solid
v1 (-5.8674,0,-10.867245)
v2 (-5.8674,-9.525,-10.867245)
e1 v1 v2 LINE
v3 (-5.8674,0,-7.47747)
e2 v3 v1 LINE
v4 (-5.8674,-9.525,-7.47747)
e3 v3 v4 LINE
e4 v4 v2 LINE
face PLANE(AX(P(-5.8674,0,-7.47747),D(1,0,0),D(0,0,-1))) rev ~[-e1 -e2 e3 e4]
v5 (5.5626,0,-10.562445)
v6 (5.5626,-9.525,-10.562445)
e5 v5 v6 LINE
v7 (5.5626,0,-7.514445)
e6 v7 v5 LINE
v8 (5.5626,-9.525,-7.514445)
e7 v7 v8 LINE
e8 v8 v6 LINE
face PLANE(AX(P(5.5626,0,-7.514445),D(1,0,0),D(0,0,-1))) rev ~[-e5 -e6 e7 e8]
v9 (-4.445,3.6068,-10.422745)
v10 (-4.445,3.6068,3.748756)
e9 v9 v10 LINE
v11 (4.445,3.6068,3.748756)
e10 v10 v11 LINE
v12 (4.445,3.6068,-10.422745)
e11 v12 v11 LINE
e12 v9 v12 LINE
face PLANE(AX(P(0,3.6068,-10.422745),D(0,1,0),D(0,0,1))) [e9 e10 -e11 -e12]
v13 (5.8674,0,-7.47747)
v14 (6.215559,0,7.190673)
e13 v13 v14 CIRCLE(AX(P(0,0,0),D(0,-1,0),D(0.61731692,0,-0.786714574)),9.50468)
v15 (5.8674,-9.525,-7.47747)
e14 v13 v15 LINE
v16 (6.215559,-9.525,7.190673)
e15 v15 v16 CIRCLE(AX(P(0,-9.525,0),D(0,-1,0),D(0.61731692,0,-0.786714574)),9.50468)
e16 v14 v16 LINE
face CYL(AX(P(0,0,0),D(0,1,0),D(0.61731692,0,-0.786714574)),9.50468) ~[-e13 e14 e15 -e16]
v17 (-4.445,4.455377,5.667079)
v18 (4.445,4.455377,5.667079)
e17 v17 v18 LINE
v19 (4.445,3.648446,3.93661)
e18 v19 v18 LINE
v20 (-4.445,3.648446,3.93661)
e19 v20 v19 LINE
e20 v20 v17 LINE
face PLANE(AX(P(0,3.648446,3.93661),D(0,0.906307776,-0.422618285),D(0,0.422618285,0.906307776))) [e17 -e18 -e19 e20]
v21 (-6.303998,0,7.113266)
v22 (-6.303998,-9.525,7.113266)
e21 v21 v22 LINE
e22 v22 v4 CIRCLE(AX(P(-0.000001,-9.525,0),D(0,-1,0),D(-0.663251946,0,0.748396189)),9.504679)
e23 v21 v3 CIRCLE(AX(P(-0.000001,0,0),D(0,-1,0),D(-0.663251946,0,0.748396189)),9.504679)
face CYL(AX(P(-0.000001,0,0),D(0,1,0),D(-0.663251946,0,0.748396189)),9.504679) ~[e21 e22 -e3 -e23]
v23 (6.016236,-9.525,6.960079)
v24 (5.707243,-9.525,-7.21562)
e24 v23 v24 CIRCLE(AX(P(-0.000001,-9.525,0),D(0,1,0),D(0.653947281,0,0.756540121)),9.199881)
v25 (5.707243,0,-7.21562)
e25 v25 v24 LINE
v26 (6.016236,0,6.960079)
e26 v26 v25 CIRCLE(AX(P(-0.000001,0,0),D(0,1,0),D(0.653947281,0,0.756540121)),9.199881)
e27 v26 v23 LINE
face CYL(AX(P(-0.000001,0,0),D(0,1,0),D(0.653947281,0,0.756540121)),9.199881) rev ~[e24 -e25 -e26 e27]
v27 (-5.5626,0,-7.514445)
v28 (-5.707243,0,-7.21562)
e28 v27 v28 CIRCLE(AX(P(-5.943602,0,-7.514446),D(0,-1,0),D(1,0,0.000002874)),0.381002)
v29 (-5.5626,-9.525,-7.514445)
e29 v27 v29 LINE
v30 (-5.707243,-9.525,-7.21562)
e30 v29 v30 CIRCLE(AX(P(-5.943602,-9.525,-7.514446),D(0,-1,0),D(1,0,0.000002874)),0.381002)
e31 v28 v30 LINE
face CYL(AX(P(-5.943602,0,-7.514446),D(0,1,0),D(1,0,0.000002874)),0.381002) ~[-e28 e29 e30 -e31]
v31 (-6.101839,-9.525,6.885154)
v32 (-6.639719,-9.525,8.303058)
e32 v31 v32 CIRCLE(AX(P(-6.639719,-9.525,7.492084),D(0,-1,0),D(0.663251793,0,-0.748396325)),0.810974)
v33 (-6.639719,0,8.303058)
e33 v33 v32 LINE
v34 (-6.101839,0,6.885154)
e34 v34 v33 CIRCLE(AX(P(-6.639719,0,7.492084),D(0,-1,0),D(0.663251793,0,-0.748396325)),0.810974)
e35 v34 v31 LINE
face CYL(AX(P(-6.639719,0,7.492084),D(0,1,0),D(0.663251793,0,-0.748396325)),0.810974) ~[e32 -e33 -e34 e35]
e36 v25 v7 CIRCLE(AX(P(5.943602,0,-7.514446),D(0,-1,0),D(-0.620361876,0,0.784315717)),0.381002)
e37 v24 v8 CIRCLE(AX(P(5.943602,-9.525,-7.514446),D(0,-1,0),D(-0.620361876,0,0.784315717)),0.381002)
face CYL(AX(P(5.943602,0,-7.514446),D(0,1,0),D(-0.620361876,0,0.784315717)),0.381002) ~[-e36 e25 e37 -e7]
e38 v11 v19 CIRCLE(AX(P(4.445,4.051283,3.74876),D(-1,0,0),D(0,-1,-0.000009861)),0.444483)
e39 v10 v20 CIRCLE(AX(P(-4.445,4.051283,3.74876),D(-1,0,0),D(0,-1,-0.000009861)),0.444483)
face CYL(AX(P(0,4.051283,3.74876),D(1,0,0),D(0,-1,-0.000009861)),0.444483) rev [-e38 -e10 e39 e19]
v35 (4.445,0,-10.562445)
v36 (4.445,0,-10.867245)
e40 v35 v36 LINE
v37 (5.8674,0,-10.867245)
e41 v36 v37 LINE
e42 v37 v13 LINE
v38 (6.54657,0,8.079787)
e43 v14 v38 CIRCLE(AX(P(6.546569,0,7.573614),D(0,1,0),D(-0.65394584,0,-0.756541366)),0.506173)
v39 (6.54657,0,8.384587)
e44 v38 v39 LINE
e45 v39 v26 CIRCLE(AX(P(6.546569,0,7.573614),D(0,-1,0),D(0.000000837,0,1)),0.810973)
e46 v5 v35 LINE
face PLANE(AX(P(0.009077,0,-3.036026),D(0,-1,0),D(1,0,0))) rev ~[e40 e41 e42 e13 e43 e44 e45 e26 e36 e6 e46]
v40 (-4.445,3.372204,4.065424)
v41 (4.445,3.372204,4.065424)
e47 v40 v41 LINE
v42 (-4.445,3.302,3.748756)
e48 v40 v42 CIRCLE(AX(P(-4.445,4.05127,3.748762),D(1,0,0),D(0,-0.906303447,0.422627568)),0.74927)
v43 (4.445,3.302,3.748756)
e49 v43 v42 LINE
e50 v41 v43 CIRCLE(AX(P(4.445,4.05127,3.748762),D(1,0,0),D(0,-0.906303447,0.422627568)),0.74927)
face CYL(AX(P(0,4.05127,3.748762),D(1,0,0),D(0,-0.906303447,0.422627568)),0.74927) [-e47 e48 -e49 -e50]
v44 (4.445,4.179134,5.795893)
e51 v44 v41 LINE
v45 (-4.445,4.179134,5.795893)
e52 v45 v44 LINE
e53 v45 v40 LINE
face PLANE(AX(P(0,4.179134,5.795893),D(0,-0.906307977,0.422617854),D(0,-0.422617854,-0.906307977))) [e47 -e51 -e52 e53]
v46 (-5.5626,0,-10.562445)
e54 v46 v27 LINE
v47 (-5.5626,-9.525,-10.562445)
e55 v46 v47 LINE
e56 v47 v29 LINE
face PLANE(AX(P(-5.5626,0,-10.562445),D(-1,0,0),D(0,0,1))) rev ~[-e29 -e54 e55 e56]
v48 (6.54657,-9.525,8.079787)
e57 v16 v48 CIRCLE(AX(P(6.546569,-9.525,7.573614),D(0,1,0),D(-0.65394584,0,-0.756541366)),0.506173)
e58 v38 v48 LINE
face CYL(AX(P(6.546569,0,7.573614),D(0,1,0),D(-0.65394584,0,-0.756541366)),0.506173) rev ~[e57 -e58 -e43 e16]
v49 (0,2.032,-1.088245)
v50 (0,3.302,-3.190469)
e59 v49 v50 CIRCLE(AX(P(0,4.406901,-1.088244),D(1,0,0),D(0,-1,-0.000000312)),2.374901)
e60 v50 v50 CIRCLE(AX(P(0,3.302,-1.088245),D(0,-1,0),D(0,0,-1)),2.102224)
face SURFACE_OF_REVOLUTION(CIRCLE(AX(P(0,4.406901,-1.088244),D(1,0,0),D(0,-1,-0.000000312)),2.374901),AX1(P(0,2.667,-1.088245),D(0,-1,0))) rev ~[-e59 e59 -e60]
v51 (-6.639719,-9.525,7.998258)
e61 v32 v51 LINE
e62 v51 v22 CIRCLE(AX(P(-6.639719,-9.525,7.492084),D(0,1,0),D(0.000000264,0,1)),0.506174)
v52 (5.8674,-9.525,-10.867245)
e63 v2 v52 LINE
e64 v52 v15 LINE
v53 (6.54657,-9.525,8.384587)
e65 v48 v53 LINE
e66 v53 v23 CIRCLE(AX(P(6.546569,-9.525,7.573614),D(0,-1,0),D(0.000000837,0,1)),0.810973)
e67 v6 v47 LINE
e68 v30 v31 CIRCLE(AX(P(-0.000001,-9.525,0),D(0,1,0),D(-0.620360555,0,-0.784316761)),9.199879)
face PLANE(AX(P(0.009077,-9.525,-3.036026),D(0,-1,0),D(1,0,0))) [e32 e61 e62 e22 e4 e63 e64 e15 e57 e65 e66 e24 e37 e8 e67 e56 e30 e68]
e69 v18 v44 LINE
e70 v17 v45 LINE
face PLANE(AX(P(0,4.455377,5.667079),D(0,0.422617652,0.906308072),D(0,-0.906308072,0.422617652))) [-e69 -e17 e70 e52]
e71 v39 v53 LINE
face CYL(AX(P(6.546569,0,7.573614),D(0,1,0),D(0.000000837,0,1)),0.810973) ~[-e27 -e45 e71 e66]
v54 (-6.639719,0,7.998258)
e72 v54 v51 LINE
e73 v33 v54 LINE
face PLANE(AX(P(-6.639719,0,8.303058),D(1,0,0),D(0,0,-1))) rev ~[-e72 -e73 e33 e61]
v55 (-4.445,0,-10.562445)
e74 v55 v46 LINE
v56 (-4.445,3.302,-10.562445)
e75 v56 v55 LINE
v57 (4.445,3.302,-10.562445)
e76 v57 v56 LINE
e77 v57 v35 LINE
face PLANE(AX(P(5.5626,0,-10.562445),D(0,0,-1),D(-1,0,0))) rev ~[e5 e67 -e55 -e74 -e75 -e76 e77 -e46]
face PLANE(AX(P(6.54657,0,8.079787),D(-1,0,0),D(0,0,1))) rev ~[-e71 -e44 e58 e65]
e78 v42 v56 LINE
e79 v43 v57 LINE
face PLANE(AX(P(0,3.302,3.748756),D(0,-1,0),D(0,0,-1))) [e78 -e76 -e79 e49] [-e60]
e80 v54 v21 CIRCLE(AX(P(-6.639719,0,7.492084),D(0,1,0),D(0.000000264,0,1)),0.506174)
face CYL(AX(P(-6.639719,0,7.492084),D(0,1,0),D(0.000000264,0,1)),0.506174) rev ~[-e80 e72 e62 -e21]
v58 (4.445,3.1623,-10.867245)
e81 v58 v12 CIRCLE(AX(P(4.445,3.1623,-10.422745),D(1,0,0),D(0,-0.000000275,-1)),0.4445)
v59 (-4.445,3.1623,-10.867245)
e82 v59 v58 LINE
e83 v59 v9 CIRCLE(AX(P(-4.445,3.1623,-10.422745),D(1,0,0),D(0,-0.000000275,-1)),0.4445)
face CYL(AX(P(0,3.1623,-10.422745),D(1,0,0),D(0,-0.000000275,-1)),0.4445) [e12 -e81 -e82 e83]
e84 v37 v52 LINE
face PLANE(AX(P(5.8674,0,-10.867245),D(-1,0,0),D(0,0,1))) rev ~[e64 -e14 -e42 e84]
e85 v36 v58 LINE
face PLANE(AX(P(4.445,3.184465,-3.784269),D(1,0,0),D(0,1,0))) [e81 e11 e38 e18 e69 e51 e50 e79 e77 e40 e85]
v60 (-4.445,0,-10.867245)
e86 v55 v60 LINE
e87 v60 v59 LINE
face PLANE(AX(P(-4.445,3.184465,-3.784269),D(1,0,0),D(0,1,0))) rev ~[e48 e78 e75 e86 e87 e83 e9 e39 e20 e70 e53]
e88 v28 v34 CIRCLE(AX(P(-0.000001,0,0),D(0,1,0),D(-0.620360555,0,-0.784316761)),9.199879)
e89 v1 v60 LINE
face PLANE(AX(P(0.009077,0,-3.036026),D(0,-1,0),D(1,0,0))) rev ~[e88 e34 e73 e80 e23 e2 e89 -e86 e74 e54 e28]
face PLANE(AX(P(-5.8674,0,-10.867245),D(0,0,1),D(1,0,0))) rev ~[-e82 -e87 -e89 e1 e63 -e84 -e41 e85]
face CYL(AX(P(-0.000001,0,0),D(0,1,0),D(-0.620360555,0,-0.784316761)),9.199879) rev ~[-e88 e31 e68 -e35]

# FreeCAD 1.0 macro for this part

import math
import FreeCAD as App
import Part
import Sketcher
from FreeCAD import Vector
Q = App.Units.Quantity

doc = App.newDocument("Part")
body = doc.addObject("PartDesign::Body", "Body")

# Sketch on XZ plane
sketch1 = body.newObject("Sketcher::SketchObject", "Sketch")
sketch1.AttachmentSupport = (doc.getObject("XZ_Plane"), [""])
sketch1.MapMode = "FlatFace"
sketch1.addGeometry([
    Part.ArcOfCircle(Part.Circle(Vector(0, 0, 0), Vector(0, 0, 1), 9.2), math.radians(132), math.radians(232)),  # 0
    Part.ArcOfCircle(Part.Circle(Vector(-6.64, 7.49, 0), Vector(0, 0, 1), 0.81), math.radians(-48), math.radians(90)),  # 1
    Part.LineSegment(Vector(-6.64, 8.3, 0), Vector(-6.64, 8, 0)),  # 2
    Part.ArcOfCircle(Part.Circle(Vector(-6.64, 7.49, 0), Vector(0, 0, 1), 0.51), math.radians(-48), math.radians(90)),  # 3
    Part.ArcOfCircle(Part.Circle(Vector(0, 0, 0), Vector(0, 0, 1), 9.5), math.radians(132), math.radians(232)),  # 4
    Part.LineSegment(Vector(-5.87, -7.48, 0), Vector(-5.87, -10.87, 0)),  # 5
    Part.LineSegment(Vector(-5.87, -10.87, 0), Vector(5.87, -10.87, 0)),  # 6
    Part.LineSegment(Vector(5.87, -10.87, 0), Vector(5.87, -7.48, 0)),  # 7
    Part.ArcOfCircle(Part.Circle(Vector(0, 0, 0), Vector(0, 0, 1), 9.5), math.radians(-52), math.radians(49)),  # 8
    Part.ArcOfCircle(Part.Circle(Vector(6.55, 7.57, 0), Vector(0, 0, 1), 0.51), math.radians(90), math.radians(229)),  # 9
    Part.LineSegment(Vector(6.55, 8.08, 0), Vector(6.55, 8.38, 0)),  # 10
    Part.ArcOfCircle(Part.Circle(Vector(6.55, 7.57, 0), Vector(0, 0, 1), 0.81), math.radians(90), math.radians(229)),  # 11
    Part.ArcOfCircle(Part.Circle(Vector(0, 0, 0), Vector(0, 0, 1), 9.2), math.radians(-52), math.radians(49)),  # 12
    Part.ArcOfCircle(Part.Circle(Vector(5.94, -7.51, 0), Vector(0, 0, 1), 0.38), math.radians(128), math.radians(180)),  # 13
    Part.LineSegment(Vector(5.56, -7.51, 0), Vector(5.56, -10.56, 0)),  # 14
    Part.LineSegment(Vector(5.56, -10.56, 0), Vector(-5.56, -10.56, 0)),  # 15
    Part.LineSegment(Vector(-5.56, -10.56, 0), Vector(-5.56, -7.51, 0)),  # 16
    Part.ArcOfCircle(Part.Circle(Vector(-5.94, -7.51, 0), Vector(0, 0, 1), 0.38), math.radians(0), math.radians(52)),  # 17
], False)
sketch1.addConstraint([
    Sketcher.Constraint("Tangent", 0, 1, 1, 1),
    Sketcher.Constraint("Coincident", 1, 2, 2, 1),
    Sketcher.Constraint("Coincident", 2, 2, 3, 2),
    Sketcher.Constraint("Tangent", 3, 1, 4, 1),
    Sketcher.Constraint("Coincident", 4, 2, 5, 1),
    Sketcher.Constraint("Coincident", 5, 2, 6, 1),
    Sketcher.Constraint("Coincident", 6, 2, 7, 1),
    Sketcher.Constraint("Coincident", 7, 2, 8, 1),
    Sketcher.Constraint("Tangent", 8, 2, 9, 2),
    Sketcher.Constraint("Coincident", 9, 1, 10, 1),
    Sketcher.Constraint("Coincident", 10, 2, 11, 1),
    Sketcher.Constraint("Tangent", 11, 2, 12, 2),
    Sketcher.Constraint("Tangent", 12, 1, 13, 1),
    Sketcher.Constraint("Coincident", 13, 2, 14, 1),
    Sketcher.Constraint("Coincident", 14, 2, 15, 1),
    Sketcher.Constraint("Coincident", 15, 2, 16, 1),
    Sketcher.Constraint("Coincident", 16, 2, 17, 1),
    Sketcher.Constraint("Tangent", 17, 2, 0, 2),
    Sketcher.Constraint("Vertical", 2),
    Sketcher.Constraint("Vertical", 5),
    Sketcher.Constraint("Horizontal", 6),
    Sketcher.Constraint("Vertical", 7),
    Sketcher.Constraint("Vertical", 10),
    Sketcher.Constraint("Vertical", 14),
    Sketcher.Constraint("Horizontal", 15),
    Sketcher.Constraint("Vertical", 16),
    Sketcher.Constraint("Coincident", 0, 3, -1, 1),
    Sketcher.Constraint("Coincident", 4, 3, -1, 1),
    Sketcher.Constraint("Coincident", 8, 3, -1, 1),
    Sketcher.Constraint("Coincident", 12, 3, -1, 1),
    Sketcher.Constraint("Coincident", 3, 3, 1, 3),
    Sketcher.Constraint("Coincident", 11, 3, 9, 3),
    Sketcher.Constraint("Equal", 4, 8),
    Sketcher.Constraint("Equal", 3, 9),
    Sketcher.Constraint("Equal", 1, 11),
    Sketcher.Constraint("Equal", 13, 17),
    Sketcher.Constraint("Symmetric", 13, 2, 16, 2, -2),
    Sketcher.Constraint("Horizontal", 4, 2, 7, 2),
    Sketcher.Constraint("Horizontal", 17, 3, 13, 2),
    Sketcher.Constraint("Vertical", 3, 3, 1, 2),
    Sketcher.Constraint("Vertical", 11, 3, 9, 1),
    Sketcher.Constraint("Radius", 13, Q("0.0150001 in")),
    Sketcher.Constraint("DistanceY", 14, 2, 14, 1, Q("0.12 in")),
    Sketcher.Constraint("Radius", 0, Q("0.3622 in")),
    Sketcher.Constraint("Radius", 4, Q("0.3742 in")),
    Sketcher.Constraint("DistanceX", 6, 1, 6, 2, Q("0.462 in")),
    Sketcher.Constraint("DistanceX", 15, 2, 15, 1, Q("0.438 in")),
    Sketcher.Constraint("DistanceY", 5, 2, 17, 3, Q("0.132 in")),
    Sketcher.Constraint("Radius", 1, Q("0.810974 mm")),
    Sketcher.Constraint("DistanceX", 1, 3, -1, 1, Q("6.639719 mm")),
    Sketcher.Constraint("DistanceX", -1, 1, 9, 3, Q("6.546569 mm")),
])
pad1 = body.newObject("PartDesign::Pad", "Pad")
pad1.Profile = sketch1
pad1.Length = Q("0.375 in")

# Sketch on YZ plane
sketch2 = body.newObject("Sketcher::SketchObject", "Sketch001")
sketch2.AttachmentSupport = (doc.getObject("YZ_Plane"), [""])
sketch2.MapMode = "FlatFace"
sketch2.addGeometry([
    Part.LineSegment(Vector(0, -10.56, 0), Vector(0, -10.87, 0)),  # 0
    Part.LineSegment(Vector(0, -10.87, 0), Vector(3.16, -10.87, 0)),  # 1
    Part.ArcOfCircle(Part.Circle(Vector(3.16, -10.42, 0), Vector(0, 0, 1), 0.44), math.radians(-90), math.radians(0)),  # 2
    Part.LineSegment(Vector(3.61, -10.42, 0), Vector(3.61, 3.75, 0)),  # 3
    Part.ArcOfCircle(Part.Circle(Vector(4.05, 3.75, 0), Vector(0, 0, 1), 0.44), math.radians(155), math.radians(180)),  # 4
    Part.LineSegment(Vector(3.65, 3.94, 0), Vector(4.46, 5.67, 0)),  # 5
    Part.LineSegment(Vector(4.46, 5.67, 0), Vector(4.18, 5.8, 0)),  # 6
    Part.LineSegment(Vector(4.18, 5.8, 0), Vector(3.37, 4.07, 0)),  # 7
    Part.ArcOfCircle(Part.Circle(Vector(4.05, 3.75, 0), Vector(0, 0, 1), 0.75), math.radians(155), math.radians(180)),  # 8
    Part.LineSegment(Vector(3.3, 3.75, 0), Vector(3.3, -10.56, 0)),  # 9
    Part.LineSegment(Vector(3.3, -10.56, 0), Vector(0, -10.56, 0)),  # 10
], False)
sketch2.addConstraint([
    Sketcher.Constraint("Coincident", 0, 2, 1, 1),
    Sketcher.Constraint("Tangent", 1, 2, 2, 1),
    Sketcher.Constraint("Tangent", 2, 2, 3, 1),
    Sketcher.Constraint("Coincident", 3, 2, 4, 2),
    Sketcher.Constraint("Coincident", 4, 1, 5, 1),
    Sketcher.Constraint("Coincident", 5, 2, 6, 1),
    Sketcher.Constraint("Coincident", 6, 2, 7, 1),
    Sketcher.Constraint("Coincident", 7, 2, 8, 1),
    Sketcher.Constraint("Coincident", 8, 2, 9, 1),
    Sketcher.Constraint("Coincident", 9, 2, 10, 1),
    Sketcher.Constraint("Coincident", 10, 2, 0, 1),
    Sketcher.Constraint("Vertical", 0),
    Sketcher.Constraint("Horizontal", 1),
    Sketcher.Constraint("Vertical", 3),
    Sketcher.Constraint("Vertical", 9),
    Sketcher.Constraint("Horizontal", 10),
    Sketcher.Constraint("PointOnObject", 0, 2, -2),
    Sketcher.Constraint("Perpendicular", 5, 6),
    Sketcher.Constraint("Perpendicular", 6, 7),
    Sketcher.Constraint("Horizontal", 4, 3, 8, 3),
    Sketcher.Constraint("Horizontal", 3, 2, 8, 2),
    Sketcher.Constraint("Equal", 5, 7),
    Sketcher.Constraint("Angle", 5, Q("64.999999 deg")),
    Sketcher.Constraint("DistanceX", 10, 2, 10, 1, Q("0.13 in")),
    Sketcher.Constraint("Radius", 2, Q("0.0175 in")),
    Sketcher.Constraint("DistanceY", 0, 2, 0, 1, Q("0.012 in")),
    Sketcher.Constraint("Distance", 6, Q("0.012 in")),
    Sketcher.Constraint("DistanceX", 1, 1, 1, 2, Q("0.1245 in")),
    Sketcher.Constraint("Radius", 8, Q("0.74927 mm")),
    Sketcher.Constraint("DistanceY", 3, 1, 3, 2, Q("14.171501 mm")),
    Sketcher.Constraint("DistanceY", 4, 1, 6, 2, Q("0.0732001 in")),
    Sketcher.Constraint("DistanceY", -1, 1, 4, 3, Q("3.74876 mm")),
    Sketcher.Constraint("DistanceY", -1, 1, 4, 1, Q("3.93661 mm")),
    Sketcher.Constraint("DistanceY", 2, 3, -1, 1, Q("10.422745 mm")),
])
pad2 = body.newObject("PartDesign::Pad", "Pad001")
pad2.Profile = sketch2
pad2.Length = Q("0.35 in")
pad2.Midplane = True

# Sketch on YZ plane
sketch3 = body.newObject("Sketcher::SketchObject", "Sketch002")
sketch3.AttachmentSupport = (doc.getObject("YZ_Plane"), [""])
sketch3.MapMode = "FlatFace"
sketch3.addGeometry([
    Part.LineSegment(Vector(3.3, -1.1, 0), Vector(2, -1.1, 0)),
    Part.ArcOfCircle(Part.Circle(Vector(4.4, -1.1, 0), Vector(0, 0, 1), 2.4), math.radians(-180), math.radians(-118)),
    Part.LineSegment(Vector(3.3, -3.2, 0), Vector(3.3, -1.1, 0)),
], False)
sketch3.addGeometry(Part.LineSegment(Vector(4.4, -1.1, 0), Vector(2, -1.1, 0)), True)  # axis
sketch3.addConstraint([
    Sketcher.Constraint("Coincident", 0, 2, 1, 1),
    Sketcher.Constraint("Coincident", 1, 2, 2, 1),
    Sketcher.Constraint("Coincident", 2, 2, 0, 1),
    Sketcher.Constraint("Horizontal", 0),
    Sketcher.Constraint("Vertical", 2),
    Sketcher.Constraint("Horizontal", 3),
    Sketcher.Constraint("Coincident", 3, 1, 1, 3),
    Sketcher.Constraint("Coincident", 3, 2, 0, 2),
    Sketcher.Constraint("DistanceX", 0, 2, 0, 1, Q("0.05 in")),
    Sketcher.Constraint("Radius", 1, Q("0.0935 in")),
    Sketcher.Constraint("DistanceX", -1, 1, 0, 2, Q("0.08 in")),
    Sketcher.Constraint("DistanceY", 1, 2, -1, 1, Q("3.190469 mm")),
])
revolution = body.newObject("PartDesign::Revolution", "Revolution")
revolution.Profile = sketch3
revolution.ReferenceAxis = (sketch3, ["Axis0"])
revolution.Angle = 360

doc.recompute()
